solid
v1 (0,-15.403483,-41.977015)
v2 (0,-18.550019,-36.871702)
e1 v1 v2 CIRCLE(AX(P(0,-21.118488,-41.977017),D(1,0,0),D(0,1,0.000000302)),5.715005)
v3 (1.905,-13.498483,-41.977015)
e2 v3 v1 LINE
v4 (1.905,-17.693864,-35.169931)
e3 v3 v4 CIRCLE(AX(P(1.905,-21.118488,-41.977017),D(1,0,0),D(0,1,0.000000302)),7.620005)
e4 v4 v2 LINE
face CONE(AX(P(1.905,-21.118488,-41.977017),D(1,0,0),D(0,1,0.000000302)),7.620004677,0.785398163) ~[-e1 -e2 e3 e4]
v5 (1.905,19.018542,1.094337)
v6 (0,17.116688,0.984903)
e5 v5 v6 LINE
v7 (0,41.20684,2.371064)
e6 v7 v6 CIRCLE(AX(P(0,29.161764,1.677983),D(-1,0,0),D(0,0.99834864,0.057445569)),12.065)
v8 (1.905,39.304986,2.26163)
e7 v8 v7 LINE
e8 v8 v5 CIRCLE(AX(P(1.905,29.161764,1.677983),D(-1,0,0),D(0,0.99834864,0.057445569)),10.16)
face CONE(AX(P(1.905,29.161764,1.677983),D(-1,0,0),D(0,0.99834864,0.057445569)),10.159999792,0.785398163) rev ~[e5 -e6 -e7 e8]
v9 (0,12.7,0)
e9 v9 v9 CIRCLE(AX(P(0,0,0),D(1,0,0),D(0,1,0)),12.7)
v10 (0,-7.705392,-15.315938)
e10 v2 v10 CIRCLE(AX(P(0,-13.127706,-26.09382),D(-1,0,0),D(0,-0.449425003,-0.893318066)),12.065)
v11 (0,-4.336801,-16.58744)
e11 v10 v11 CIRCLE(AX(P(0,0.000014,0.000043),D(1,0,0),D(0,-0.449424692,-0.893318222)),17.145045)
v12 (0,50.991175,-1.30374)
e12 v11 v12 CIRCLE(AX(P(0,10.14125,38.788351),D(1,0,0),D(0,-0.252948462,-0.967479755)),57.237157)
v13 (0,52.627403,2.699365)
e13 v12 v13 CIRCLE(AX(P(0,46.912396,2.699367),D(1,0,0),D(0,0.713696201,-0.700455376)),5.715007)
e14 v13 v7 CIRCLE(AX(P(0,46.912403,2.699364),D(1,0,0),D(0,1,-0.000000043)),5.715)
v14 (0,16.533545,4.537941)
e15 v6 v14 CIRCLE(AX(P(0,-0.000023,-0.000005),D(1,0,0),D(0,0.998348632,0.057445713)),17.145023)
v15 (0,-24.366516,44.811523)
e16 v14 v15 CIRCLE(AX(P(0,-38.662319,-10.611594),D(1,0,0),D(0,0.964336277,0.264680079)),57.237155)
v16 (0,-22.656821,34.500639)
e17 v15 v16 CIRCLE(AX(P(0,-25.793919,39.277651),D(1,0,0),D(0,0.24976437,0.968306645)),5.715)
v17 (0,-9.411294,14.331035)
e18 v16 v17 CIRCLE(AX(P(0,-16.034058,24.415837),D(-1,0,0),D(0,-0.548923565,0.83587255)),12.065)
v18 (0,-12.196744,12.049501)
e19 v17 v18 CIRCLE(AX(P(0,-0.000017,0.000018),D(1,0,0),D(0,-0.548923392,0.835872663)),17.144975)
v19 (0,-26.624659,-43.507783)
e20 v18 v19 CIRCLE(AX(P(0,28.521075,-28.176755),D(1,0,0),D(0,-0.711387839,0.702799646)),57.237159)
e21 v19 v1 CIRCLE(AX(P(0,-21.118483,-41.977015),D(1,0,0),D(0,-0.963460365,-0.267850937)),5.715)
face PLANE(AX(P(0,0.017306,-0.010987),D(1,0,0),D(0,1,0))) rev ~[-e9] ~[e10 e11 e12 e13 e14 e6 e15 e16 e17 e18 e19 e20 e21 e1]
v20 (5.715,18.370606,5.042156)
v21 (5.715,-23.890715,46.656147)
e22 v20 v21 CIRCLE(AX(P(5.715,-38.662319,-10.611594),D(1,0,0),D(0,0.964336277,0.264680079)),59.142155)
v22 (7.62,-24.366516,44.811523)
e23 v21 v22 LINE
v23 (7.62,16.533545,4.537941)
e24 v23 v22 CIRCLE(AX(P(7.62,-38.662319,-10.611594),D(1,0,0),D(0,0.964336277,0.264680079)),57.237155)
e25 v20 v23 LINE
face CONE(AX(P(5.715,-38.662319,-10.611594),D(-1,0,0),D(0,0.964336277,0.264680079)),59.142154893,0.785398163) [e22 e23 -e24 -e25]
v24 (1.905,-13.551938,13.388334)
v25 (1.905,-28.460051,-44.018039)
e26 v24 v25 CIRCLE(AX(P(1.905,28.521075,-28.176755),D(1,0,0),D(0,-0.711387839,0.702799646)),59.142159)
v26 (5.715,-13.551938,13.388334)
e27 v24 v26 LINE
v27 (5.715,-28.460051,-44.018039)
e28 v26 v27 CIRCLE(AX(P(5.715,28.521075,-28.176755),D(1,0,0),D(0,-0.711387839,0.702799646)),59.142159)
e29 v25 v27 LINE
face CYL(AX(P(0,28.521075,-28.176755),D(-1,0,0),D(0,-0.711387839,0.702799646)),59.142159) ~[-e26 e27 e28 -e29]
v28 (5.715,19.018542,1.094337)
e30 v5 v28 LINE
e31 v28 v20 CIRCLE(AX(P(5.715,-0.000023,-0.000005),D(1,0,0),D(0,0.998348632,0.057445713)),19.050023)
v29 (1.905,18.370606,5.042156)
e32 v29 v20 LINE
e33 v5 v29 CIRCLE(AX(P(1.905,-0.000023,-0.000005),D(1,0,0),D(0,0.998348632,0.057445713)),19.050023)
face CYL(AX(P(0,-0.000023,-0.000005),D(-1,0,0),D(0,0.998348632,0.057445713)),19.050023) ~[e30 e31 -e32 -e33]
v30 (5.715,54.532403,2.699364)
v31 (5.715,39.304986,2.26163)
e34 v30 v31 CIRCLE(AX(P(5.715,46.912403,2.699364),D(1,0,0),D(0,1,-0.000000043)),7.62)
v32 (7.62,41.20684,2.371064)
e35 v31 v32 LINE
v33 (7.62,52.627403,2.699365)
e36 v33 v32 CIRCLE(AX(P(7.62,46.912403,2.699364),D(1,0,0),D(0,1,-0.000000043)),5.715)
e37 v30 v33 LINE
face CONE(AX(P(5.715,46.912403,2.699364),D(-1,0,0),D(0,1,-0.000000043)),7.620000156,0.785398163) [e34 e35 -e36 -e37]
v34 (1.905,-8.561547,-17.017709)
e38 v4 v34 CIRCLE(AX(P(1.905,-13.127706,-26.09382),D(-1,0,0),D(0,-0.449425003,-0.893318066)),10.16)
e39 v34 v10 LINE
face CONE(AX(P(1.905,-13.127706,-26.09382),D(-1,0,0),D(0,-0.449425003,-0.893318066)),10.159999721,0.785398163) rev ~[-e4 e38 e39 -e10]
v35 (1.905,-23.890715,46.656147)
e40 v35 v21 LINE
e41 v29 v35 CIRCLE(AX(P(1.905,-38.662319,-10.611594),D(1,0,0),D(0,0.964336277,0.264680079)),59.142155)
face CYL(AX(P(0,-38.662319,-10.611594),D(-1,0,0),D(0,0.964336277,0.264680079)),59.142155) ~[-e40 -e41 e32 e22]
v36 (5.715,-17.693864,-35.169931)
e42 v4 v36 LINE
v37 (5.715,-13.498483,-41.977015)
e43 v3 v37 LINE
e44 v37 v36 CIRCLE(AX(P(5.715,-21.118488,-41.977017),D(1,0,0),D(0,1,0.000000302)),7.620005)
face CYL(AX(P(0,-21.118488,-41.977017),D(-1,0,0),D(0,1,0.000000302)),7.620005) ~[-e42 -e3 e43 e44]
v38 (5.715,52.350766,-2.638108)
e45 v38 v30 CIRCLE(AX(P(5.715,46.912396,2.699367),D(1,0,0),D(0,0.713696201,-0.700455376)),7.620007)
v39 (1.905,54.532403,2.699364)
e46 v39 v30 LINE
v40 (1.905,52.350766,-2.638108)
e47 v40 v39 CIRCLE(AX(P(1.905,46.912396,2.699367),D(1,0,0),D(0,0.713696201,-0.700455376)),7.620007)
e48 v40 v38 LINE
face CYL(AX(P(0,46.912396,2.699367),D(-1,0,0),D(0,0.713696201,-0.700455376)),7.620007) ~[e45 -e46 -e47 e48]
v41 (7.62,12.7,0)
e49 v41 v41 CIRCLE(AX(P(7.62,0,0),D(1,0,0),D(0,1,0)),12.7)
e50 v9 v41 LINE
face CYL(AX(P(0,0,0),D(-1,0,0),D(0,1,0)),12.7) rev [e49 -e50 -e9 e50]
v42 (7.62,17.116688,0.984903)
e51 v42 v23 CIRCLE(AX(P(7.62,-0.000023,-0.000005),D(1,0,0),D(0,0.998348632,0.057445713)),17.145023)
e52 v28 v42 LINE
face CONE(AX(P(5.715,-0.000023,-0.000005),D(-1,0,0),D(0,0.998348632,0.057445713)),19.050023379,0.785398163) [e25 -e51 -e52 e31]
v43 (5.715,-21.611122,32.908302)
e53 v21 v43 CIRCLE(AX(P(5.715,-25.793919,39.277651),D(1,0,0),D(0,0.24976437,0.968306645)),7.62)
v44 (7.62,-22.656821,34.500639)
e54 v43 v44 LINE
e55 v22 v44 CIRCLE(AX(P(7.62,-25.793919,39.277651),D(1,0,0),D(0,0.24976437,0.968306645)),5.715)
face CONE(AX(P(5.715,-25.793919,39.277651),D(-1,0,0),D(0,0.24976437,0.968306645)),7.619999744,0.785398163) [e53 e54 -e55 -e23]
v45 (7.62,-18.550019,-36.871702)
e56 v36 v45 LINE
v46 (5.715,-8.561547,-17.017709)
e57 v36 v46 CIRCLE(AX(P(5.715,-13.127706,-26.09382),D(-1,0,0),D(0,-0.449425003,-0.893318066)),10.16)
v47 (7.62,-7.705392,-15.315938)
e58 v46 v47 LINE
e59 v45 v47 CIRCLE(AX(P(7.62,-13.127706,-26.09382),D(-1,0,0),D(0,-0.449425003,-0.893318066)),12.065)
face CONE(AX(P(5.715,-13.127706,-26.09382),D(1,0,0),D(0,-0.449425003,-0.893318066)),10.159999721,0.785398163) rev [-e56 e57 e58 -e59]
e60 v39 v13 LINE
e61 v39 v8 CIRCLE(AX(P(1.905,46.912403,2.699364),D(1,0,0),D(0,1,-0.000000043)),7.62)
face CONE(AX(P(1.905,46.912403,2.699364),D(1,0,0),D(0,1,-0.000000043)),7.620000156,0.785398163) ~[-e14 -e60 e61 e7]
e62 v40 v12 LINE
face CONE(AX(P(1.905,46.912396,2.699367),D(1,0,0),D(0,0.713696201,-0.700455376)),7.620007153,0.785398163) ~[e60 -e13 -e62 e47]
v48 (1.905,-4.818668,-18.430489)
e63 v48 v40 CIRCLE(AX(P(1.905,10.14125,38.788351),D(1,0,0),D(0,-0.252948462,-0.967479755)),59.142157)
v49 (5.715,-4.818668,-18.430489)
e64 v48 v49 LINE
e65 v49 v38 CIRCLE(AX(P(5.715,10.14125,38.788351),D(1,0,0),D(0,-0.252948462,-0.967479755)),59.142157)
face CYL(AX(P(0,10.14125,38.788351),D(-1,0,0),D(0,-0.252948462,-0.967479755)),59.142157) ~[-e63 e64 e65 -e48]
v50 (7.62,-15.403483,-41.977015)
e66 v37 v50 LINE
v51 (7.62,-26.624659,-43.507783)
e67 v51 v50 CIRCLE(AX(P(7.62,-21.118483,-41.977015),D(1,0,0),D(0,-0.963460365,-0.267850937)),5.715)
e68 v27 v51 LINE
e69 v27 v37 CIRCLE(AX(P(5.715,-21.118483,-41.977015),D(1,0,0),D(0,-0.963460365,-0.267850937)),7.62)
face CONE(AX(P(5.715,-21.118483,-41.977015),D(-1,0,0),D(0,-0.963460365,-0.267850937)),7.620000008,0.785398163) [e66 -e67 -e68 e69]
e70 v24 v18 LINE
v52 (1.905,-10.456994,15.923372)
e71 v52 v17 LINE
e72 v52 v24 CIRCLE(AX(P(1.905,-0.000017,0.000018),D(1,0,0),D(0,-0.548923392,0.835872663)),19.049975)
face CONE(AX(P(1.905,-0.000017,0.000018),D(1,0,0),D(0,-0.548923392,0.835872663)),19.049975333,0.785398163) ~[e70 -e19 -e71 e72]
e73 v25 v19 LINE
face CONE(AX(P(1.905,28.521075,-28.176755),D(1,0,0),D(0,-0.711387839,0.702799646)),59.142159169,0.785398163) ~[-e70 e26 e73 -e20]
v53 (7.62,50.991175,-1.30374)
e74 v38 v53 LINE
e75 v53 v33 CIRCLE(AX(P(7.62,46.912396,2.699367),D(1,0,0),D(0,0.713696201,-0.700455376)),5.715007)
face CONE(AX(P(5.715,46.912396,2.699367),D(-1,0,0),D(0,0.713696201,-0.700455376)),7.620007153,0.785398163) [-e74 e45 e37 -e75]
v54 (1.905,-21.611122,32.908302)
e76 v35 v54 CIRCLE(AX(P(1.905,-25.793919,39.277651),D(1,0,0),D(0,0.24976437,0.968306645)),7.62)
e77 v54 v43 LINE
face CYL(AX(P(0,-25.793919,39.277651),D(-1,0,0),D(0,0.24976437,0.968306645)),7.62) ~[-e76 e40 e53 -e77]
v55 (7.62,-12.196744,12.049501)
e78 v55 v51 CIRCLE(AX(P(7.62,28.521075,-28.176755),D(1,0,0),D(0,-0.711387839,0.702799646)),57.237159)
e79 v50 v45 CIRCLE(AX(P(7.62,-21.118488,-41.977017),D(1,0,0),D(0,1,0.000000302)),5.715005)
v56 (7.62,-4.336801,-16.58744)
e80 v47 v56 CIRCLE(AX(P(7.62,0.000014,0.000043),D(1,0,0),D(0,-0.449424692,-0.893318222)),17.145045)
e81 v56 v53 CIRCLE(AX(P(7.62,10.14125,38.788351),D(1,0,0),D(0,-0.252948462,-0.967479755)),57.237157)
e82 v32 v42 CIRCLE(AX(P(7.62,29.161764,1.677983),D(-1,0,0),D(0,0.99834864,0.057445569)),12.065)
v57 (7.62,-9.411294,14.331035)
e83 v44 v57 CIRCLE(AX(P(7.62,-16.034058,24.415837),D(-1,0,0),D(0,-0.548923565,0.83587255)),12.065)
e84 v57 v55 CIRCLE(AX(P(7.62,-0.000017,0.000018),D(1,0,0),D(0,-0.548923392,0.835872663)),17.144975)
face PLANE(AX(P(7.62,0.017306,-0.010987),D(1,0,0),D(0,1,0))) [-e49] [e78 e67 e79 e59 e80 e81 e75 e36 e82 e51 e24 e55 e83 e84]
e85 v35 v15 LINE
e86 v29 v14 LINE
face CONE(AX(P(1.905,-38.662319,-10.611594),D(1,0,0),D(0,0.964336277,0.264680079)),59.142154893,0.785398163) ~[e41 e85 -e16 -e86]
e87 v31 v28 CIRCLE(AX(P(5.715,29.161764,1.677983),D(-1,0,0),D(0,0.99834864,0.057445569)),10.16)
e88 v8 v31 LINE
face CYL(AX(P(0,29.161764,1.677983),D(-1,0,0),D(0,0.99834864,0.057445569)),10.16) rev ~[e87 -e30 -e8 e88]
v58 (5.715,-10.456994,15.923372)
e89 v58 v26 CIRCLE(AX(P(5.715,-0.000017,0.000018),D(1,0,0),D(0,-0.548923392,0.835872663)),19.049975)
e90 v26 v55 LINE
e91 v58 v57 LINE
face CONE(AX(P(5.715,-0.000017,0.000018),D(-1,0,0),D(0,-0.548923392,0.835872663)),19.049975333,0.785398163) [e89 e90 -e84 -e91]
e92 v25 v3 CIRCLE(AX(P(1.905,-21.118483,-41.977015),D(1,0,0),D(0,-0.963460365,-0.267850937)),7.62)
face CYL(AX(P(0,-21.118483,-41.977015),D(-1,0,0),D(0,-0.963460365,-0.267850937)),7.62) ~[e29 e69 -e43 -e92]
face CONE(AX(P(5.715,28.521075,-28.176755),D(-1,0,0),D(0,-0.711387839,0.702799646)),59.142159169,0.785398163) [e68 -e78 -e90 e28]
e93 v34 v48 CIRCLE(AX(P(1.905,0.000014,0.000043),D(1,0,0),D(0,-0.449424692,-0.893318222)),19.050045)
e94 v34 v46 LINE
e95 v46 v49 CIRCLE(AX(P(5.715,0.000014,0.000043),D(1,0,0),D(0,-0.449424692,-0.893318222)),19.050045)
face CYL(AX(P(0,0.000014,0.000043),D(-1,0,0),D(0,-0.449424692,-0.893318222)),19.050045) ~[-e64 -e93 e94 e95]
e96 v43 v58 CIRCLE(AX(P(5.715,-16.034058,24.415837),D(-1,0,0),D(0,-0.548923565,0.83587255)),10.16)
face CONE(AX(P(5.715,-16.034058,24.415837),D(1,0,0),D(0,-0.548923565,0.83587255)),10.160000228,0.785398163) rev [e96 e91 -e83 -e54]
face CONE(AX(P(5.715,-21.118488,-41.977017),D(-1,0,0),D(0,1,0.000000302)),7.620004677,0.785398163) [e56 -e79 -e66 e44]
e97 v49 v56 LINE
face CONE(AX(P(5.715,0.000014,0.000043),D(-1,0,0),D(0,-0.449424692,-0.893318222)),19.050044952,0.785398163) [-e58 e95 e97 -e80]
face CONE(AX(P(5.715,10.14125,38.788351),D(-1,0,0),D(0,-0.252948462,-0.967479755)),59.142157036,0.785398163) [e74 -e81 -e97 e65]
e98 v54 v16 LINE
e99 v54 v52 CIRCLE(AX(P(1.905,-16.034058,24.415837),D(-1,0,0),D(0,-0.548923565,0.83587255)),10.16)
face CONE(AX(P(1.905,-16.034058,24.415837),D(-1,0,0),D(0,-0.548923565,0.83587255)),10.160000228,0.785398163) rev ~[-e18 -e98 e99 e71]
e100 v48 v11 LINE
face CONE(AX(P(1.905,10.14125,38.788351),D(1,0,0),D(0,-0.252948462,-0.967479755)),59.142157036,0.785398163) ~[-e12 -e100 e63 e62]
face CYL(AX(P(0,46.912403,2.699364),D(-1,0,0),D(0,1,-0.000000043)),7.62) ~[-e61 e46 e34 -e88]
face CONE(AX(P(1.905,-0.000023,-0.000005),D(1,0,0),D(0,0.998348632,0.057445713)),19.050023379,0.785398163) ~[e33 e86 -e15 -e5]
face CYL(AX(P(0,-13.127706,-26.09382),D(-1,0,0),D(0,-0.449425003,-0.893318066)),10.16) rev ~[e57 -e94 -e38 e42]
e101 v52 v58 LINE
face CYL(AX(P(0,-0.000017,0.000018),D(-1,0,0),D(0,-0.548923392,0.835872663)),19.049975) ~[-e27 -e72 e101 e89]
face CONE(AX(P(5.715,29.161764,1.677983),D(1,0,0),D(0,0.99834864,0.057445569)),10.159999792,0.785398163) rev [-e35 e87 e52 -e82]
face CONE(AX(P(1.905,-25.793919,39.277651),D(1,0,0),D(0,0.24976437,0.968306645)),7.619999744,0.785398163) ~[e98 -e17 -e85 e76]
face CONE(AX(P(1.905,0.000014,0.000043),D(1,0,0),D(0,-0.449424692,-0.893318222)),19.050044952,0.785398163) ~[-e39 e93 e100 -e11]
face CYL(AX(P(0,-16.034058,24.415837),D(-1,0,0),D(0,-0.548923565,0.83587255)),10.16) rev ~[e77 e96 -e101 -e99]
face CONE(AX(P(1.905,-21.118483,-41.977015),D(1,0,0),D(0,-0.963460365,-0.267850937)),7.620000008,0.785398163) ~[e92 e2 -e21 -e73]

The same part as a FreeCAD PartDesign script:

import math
import FreeCAD as App
import Part
import Sketcher

V = App.Vector
Q = App.Units.Quantity


def edges_at(feature, points):
    """Names of the edges that pass closest to the given points."""
    edges = feature.Shape.Edges
    near = lambda p: min(range(len(edges)), key=lambda i: edges[i].distToShape(Part.Vertex(*p))[0])
    return sorted({f"Edge{near(p) + 1}" for p in points})

doc = App.newDocument("Part")
params = doc.addObject("Spreadsheet::Sheet", "Params")
for row, (alias, value) in enumerate([
    ("sketch1_diameter", "1 in"),
    ("sketch1_radius", "0.3 in"),
    ("sketch1_radius2", "0.4 in"),
    ("sketch1_radius3", "0.3000002 in"),
    ("pad1_length", "0.3 in"),
    ("chamfer_size", "0.075 in"),
], start=1):
    params.set(f"A{row}", alias)
    params.set(f"B{row}", "=" + value)
    params.setAlias(f"B{row}", alias)

body = doc.addObject("PartDesign::Body", "Body")

# Sketch on YZ plane
sketch1 = body.newObject("Sketcher::SketchObject", "Sketch")
sketch1.AttachmentSupport = (doc.getObject("YZ_Plane"), [""])
sketch1.MapMode = "FlatFace"
sketch1.addGeometry(Part.ArcOfCircle(Part.Circle(V(0, 0, 0), V(0, 0, 1), 19.1), math.radians(-116.71), math.radians(-104.65)), False)
sketch1.addGeometry(Part.ArcOfCircle(Part.Circle(V(10.1, 38.8, 0), V(0, 0, 1), 59.1), math.radians(-105), math.radians(-44)), False)
sketch1.addGeometry(Part.ArcOfCircle(Part.Circle(V(46.9, 2.7, 0), V(0, 0, 1), 7.6), math.radians(-44), math.radians(0)), False)
sketch1.addGeometry(Part.ArcOfCircle(Part.Circle(V(46.9, 2.7, 0), V(0, 0, 1), 7.6), math.radians(0), math.radians(183)), False)
sketch1.addGeometry(Part.ArcOfCircle(Part.Circle(V(29.2, 1.7, 0), V(0, 0, 1), 10.2), math.radians(-177), math.radians(3)), False)
sketch1.addGeometry(Part.ArcOfCircle(Part.Circle(V(0, 0, 0), V(0, 0, 1), 19.1), math.radians(3.29), math.radians(15.35)), False)
sketch1.addGeometry(Part.ArcOfCircle(Part.Circle(V(-38.7, -10.6, 0), V(0, 0, 1), 59.1), math.radians(15), math.radians(76)), False)
sketch1.addGeometry(Part.ArcOfCircle(Part.Circle(V(-25.8, 39.3, 0), V(0, 0, 1), 7.6), math.radians(76), math.radians(303)), False)
sketch1.addGeometry(Part.ArcOfCircle(Part.Circle(V(-16, 24.4, 0), V(0, 0, 1), 10.2), math.radians(-57), math.radians(123)), False)
sketch1.addGeometry(Part.ArcOfCircle(Part.Circle(V(0, 0, 0), V(0, 0, 1), 19), math.radians(123.29), math.radians(135.35)), False)
sketch1.addGeometry(Part.ArcOfCircle(Part.Circle(V(28.5, -28.2, 0), V(0, 0, 1), 59.1), math.radians(135), math.radians(196)), False)
sketch1.addGeometry(Part.ArcOfCircle(Part.Circle(V(-21.1, -42, 0), V(0, 0, 1), 7.6), math.radians(-164), math.radians(0)), False)
sketch1.addGeometry(Part.ArcOfCircle(Part.Circle(V(-21.1, -42, 0), V(0, 0, 1), 7.6), math.radians(0), math.radians(63)), False)
sketch1.addGeometry(Part.ArcOfCircle(Part.Circle(V(-13.1, -26.1, 0), V(0, 0, 1), 10.2), math.radians(63), math.radians(243)), False)
sketch1.addGeometry(Part.Circle(V(0, 0, 0), V(0, 0, 1), 12.7), False)
sketch1.addConstraint(Sketcher.Constraint("Tangent", 0, 2, 1, 1))
sketch1.addConstraint(Sketcher.Constraint("Tangent", 1, 2, 2, 1))
sketch1.addConstraint(Sketcher.Constraint("Tangent", 2, 2, 3, 1))
sketch1.addConstraint(Sketcher.Constraint("Tangent", 3, 2, 4, 2))
sketch1.addConstraint(Sketcher.Constraint("Tangent", 4, 1, 5, 1))
sketch1.addConstraint(Sketcher.Constraint("Tangent", 5, 2, 6, 1))
sketch1.addConstraint(Sketcher.Constraint("Tangent", 6, 2, 7, 1))
sketch1.addConstraint(Sketcher.Constraint("Tangent", 7, 2, 8, 2))
sketch1.addConstraint(Sketcher.Constraint("Tangent", 8, 1, 9, 1))
sketch1.addConstraint(Sketcher.Constraint("Tangent", 9, 2, 10, 1))
sketch1.addConstraint(Sketcher.Constraint("Tangent", 10, 2, 11, 1))
sketch1.addConstraint(Sketcher.Constraint("Tangent", 11, 2, 12, 1))
sketch1.addConstraint(Sketcher.Constraint("Tangent", 12, 2, 13, 2))
sketch1.addConstraint(Sketcher.Constraint("Tangent", 13, 1, 0, 1))
sketch1.addConstraint(Sketcher.Constraint("Coincident", 14, 3, -1, 1))
sketch1.addConstraint(Sketcher.Constraint("Equal", 3, 7))
sketch1.addConstraint(Sketcher.Constraint("Equal", 4, 8))
sketch1.addConstraint(Sketcher.Constraint("Equal", 7, 11))
sketch1.addConstraint(Sketcher.Constraint("Equal", 8, 13))
sketch1.addConstraint(Sketcher.Constraint("Horizontal", 3, 3, 2, 2))
sketch1.addConstraint(Sketcher.Constraint("Diameter", 14, Q("1 in")))
sketch1.addConstraint(Sketcher.Constraint("Radius", 3, Q("0.3 in")))
sketch1.addConstraint(Sketcher.Constraint("Radius", 4, Q("0.4 in")))
sketch1.addConstraint(Sketcher.Constraint("Radius", 12, Q("0.3000002 in")))
sketch1.addConstraint(Sketcher.Constraint("Radius", 10, 59.142159))
sketch1.addConstraint(Sketcher.Constraint("Radius", 0, 19.050045))
sketch1.addConstraint(Sketcher.Constraint("Radius", 1, 59.142157))
sketch1.addConstraint(Sketcher.Constraint("Radius", 2, 7.620007))
sketch1.addConstraint(Sketcher.Constraint("Radius", 5, 19.050023))
sketch1.addConstraint(Sketcher.Constraint("Radius", 6, 59.142155))
sketch1.addConstraint(Sketcher.Constraint("Radius", 9, 19.049975))
sketch1.addConstraint(Sketcher.Constraint("DistanceY", 5, 3, 9, 2, Q("0.5271 in")))
sketch1.addConstraint(Sketcher.Constraint("DistanceY", 1, 3, 7, 3, 0.4893))
sketch1.addConstraint(Sketcher.Constraint("DistanceX", 6, 3, 7, 3, 12.8684))
sketch1.addConstraint(Sketcher.Constraint("DistanceX", 12, 3, 0, 3, 21.118501))
sketch1.addConstraint(Sketcher.Constraint("DistanceX", 6, 2, 9, 3, 23.890698))
sketch1.addConstraint(Sketcher.Constraint("DistanceX", -1, 1, 1, 3, 10.14125))
sketch1.addConstraint(Sketcher.Constraint("DistanceY", -1, 1, 1, 3, 38.788351))
sketch1.addConstraint(Sketcher.Constraint("DistanceX", 6, 3, -1, 1, 38.662319))
sketch1.addConstraint(Sketcher.Constraint("DistanceX", 8, 3, -1, 1, 16.034058))
sketch1.addConstraint(Sketcher.Constraint("DistanceY", 13, 3, -1, 1, 26.09382))
sketch1.addConstraint(Sketcher.Constraint("DistanceX", 0, 2, -1, 1, 4.818668))
sketch1.addConstraint(Sketcher.Constraint("DistanceY", -1, 1, 3, 2, 2.26163))
sketch1.addConstraint(Sketcher.Constraint("DistanceY", 11, 2, -1, 1, 41.977015))
sketch1.setExpression("Constraints[20]", "Params.sketch1_diameter")
sketch1.setExpression("Constraints[21]", "Params.sketch1_radius")
sketch1.setExpression("Constraints[22]", "Params.sketch1_radius2")
sketch1.setExpression("Constraints[23]", "Params.sketch1_radius3")
pad1 = body.newObject("PartDesign::Pad", "Pad")
pad1.Profile = sketch1
pad1.setExpression("Length", "Params.pad1_length")
doc.recompute()

chamfer = body.newObject("PartDesign::Chamfer", "Chamfer")
chamfer.Base = (pad1, edges_at(pad1, [(0, 25.889, -18.219), (0, 29.745, -8.465), (7.62, 25.889, -18.219)]))
chamfer.setExpression("Size", "Params.chamfer_size")

doc.recompute()
